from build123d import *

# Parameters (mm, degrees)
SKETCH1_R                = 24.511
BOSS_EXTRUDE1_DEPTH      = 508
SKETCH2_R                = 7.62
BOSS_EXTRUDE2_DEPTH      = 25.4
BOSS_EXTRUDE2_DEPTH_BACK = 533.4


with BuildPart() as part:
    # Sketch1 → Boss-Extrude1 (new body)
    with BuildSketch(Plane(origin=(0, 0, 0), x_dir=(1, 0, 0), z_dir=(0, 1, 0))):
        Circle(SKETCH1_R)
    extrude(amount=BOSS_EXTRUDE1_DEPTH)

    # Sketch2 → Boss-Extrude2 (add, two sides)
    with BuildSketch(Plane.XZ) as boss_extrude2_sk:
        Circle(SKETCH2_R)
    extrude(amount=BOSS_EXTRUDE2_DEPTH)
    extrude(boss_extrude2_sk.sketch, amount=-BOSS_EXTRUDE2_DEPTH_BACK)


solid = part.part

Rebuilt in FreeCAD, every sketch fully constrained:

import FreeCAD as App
import Part
import Sketcher
Q = App.Units.Quantity

doc = App.newDocument("Part")
body = doc.addObject("PartDesign::Body", "Body")

sketch1 = body.newObject("Sketcher::SketchObject", "Sketch")
sketch1.AttachmentSupport = (doc.getObject("XZ_Plane"), [""])
sketch1.MapMode = "FlatFace"
sketch1.addGeometry(Part.Circle(App.Vector(0, 0, 0), App.Vector(0, 0, 1), 25), False)
sketch1.addConstraint([
    Sketcher.Constraint("Coincident", 0, 3, -1, 1),
    Sketcher.Constraint("Diameter", 0, Q("1.93 in")),
])
pad1 = body.newObject("PartDesign::Pad", "Pad")
pad1.Profile = sketch1
pad1.Length = Q("20 in")
pad1.Reversed = True

sketch2 = body.newObject("Sketcher::SketchObject", "Sketch001")
sketch2.AttachmentSupport = (doc.getObject("XZ_Plane"), [""])
sketch2.MapMode = "FlatFace"
sketch2.addGeometry(Part.Circle(App.Vector(0, 0, 0), App.Vector(0, 0, 1), 8), False)
sketch2.addConstraint([
    Sketcher.Constraint("Coincident", 0, 3, -1, 1),
    Sketcher.Constraint("Diameter", 0, Q("0.6 in")),
])
pad2 = body.newObject("PartDesign::Pad", "Pad001")
pad2.Profile = sketch2
pad2.Type = "TwoLengths"
pad2.Length = Q("1 in")
pad2.Length2 = Q("21 in")

doc.recompute()
